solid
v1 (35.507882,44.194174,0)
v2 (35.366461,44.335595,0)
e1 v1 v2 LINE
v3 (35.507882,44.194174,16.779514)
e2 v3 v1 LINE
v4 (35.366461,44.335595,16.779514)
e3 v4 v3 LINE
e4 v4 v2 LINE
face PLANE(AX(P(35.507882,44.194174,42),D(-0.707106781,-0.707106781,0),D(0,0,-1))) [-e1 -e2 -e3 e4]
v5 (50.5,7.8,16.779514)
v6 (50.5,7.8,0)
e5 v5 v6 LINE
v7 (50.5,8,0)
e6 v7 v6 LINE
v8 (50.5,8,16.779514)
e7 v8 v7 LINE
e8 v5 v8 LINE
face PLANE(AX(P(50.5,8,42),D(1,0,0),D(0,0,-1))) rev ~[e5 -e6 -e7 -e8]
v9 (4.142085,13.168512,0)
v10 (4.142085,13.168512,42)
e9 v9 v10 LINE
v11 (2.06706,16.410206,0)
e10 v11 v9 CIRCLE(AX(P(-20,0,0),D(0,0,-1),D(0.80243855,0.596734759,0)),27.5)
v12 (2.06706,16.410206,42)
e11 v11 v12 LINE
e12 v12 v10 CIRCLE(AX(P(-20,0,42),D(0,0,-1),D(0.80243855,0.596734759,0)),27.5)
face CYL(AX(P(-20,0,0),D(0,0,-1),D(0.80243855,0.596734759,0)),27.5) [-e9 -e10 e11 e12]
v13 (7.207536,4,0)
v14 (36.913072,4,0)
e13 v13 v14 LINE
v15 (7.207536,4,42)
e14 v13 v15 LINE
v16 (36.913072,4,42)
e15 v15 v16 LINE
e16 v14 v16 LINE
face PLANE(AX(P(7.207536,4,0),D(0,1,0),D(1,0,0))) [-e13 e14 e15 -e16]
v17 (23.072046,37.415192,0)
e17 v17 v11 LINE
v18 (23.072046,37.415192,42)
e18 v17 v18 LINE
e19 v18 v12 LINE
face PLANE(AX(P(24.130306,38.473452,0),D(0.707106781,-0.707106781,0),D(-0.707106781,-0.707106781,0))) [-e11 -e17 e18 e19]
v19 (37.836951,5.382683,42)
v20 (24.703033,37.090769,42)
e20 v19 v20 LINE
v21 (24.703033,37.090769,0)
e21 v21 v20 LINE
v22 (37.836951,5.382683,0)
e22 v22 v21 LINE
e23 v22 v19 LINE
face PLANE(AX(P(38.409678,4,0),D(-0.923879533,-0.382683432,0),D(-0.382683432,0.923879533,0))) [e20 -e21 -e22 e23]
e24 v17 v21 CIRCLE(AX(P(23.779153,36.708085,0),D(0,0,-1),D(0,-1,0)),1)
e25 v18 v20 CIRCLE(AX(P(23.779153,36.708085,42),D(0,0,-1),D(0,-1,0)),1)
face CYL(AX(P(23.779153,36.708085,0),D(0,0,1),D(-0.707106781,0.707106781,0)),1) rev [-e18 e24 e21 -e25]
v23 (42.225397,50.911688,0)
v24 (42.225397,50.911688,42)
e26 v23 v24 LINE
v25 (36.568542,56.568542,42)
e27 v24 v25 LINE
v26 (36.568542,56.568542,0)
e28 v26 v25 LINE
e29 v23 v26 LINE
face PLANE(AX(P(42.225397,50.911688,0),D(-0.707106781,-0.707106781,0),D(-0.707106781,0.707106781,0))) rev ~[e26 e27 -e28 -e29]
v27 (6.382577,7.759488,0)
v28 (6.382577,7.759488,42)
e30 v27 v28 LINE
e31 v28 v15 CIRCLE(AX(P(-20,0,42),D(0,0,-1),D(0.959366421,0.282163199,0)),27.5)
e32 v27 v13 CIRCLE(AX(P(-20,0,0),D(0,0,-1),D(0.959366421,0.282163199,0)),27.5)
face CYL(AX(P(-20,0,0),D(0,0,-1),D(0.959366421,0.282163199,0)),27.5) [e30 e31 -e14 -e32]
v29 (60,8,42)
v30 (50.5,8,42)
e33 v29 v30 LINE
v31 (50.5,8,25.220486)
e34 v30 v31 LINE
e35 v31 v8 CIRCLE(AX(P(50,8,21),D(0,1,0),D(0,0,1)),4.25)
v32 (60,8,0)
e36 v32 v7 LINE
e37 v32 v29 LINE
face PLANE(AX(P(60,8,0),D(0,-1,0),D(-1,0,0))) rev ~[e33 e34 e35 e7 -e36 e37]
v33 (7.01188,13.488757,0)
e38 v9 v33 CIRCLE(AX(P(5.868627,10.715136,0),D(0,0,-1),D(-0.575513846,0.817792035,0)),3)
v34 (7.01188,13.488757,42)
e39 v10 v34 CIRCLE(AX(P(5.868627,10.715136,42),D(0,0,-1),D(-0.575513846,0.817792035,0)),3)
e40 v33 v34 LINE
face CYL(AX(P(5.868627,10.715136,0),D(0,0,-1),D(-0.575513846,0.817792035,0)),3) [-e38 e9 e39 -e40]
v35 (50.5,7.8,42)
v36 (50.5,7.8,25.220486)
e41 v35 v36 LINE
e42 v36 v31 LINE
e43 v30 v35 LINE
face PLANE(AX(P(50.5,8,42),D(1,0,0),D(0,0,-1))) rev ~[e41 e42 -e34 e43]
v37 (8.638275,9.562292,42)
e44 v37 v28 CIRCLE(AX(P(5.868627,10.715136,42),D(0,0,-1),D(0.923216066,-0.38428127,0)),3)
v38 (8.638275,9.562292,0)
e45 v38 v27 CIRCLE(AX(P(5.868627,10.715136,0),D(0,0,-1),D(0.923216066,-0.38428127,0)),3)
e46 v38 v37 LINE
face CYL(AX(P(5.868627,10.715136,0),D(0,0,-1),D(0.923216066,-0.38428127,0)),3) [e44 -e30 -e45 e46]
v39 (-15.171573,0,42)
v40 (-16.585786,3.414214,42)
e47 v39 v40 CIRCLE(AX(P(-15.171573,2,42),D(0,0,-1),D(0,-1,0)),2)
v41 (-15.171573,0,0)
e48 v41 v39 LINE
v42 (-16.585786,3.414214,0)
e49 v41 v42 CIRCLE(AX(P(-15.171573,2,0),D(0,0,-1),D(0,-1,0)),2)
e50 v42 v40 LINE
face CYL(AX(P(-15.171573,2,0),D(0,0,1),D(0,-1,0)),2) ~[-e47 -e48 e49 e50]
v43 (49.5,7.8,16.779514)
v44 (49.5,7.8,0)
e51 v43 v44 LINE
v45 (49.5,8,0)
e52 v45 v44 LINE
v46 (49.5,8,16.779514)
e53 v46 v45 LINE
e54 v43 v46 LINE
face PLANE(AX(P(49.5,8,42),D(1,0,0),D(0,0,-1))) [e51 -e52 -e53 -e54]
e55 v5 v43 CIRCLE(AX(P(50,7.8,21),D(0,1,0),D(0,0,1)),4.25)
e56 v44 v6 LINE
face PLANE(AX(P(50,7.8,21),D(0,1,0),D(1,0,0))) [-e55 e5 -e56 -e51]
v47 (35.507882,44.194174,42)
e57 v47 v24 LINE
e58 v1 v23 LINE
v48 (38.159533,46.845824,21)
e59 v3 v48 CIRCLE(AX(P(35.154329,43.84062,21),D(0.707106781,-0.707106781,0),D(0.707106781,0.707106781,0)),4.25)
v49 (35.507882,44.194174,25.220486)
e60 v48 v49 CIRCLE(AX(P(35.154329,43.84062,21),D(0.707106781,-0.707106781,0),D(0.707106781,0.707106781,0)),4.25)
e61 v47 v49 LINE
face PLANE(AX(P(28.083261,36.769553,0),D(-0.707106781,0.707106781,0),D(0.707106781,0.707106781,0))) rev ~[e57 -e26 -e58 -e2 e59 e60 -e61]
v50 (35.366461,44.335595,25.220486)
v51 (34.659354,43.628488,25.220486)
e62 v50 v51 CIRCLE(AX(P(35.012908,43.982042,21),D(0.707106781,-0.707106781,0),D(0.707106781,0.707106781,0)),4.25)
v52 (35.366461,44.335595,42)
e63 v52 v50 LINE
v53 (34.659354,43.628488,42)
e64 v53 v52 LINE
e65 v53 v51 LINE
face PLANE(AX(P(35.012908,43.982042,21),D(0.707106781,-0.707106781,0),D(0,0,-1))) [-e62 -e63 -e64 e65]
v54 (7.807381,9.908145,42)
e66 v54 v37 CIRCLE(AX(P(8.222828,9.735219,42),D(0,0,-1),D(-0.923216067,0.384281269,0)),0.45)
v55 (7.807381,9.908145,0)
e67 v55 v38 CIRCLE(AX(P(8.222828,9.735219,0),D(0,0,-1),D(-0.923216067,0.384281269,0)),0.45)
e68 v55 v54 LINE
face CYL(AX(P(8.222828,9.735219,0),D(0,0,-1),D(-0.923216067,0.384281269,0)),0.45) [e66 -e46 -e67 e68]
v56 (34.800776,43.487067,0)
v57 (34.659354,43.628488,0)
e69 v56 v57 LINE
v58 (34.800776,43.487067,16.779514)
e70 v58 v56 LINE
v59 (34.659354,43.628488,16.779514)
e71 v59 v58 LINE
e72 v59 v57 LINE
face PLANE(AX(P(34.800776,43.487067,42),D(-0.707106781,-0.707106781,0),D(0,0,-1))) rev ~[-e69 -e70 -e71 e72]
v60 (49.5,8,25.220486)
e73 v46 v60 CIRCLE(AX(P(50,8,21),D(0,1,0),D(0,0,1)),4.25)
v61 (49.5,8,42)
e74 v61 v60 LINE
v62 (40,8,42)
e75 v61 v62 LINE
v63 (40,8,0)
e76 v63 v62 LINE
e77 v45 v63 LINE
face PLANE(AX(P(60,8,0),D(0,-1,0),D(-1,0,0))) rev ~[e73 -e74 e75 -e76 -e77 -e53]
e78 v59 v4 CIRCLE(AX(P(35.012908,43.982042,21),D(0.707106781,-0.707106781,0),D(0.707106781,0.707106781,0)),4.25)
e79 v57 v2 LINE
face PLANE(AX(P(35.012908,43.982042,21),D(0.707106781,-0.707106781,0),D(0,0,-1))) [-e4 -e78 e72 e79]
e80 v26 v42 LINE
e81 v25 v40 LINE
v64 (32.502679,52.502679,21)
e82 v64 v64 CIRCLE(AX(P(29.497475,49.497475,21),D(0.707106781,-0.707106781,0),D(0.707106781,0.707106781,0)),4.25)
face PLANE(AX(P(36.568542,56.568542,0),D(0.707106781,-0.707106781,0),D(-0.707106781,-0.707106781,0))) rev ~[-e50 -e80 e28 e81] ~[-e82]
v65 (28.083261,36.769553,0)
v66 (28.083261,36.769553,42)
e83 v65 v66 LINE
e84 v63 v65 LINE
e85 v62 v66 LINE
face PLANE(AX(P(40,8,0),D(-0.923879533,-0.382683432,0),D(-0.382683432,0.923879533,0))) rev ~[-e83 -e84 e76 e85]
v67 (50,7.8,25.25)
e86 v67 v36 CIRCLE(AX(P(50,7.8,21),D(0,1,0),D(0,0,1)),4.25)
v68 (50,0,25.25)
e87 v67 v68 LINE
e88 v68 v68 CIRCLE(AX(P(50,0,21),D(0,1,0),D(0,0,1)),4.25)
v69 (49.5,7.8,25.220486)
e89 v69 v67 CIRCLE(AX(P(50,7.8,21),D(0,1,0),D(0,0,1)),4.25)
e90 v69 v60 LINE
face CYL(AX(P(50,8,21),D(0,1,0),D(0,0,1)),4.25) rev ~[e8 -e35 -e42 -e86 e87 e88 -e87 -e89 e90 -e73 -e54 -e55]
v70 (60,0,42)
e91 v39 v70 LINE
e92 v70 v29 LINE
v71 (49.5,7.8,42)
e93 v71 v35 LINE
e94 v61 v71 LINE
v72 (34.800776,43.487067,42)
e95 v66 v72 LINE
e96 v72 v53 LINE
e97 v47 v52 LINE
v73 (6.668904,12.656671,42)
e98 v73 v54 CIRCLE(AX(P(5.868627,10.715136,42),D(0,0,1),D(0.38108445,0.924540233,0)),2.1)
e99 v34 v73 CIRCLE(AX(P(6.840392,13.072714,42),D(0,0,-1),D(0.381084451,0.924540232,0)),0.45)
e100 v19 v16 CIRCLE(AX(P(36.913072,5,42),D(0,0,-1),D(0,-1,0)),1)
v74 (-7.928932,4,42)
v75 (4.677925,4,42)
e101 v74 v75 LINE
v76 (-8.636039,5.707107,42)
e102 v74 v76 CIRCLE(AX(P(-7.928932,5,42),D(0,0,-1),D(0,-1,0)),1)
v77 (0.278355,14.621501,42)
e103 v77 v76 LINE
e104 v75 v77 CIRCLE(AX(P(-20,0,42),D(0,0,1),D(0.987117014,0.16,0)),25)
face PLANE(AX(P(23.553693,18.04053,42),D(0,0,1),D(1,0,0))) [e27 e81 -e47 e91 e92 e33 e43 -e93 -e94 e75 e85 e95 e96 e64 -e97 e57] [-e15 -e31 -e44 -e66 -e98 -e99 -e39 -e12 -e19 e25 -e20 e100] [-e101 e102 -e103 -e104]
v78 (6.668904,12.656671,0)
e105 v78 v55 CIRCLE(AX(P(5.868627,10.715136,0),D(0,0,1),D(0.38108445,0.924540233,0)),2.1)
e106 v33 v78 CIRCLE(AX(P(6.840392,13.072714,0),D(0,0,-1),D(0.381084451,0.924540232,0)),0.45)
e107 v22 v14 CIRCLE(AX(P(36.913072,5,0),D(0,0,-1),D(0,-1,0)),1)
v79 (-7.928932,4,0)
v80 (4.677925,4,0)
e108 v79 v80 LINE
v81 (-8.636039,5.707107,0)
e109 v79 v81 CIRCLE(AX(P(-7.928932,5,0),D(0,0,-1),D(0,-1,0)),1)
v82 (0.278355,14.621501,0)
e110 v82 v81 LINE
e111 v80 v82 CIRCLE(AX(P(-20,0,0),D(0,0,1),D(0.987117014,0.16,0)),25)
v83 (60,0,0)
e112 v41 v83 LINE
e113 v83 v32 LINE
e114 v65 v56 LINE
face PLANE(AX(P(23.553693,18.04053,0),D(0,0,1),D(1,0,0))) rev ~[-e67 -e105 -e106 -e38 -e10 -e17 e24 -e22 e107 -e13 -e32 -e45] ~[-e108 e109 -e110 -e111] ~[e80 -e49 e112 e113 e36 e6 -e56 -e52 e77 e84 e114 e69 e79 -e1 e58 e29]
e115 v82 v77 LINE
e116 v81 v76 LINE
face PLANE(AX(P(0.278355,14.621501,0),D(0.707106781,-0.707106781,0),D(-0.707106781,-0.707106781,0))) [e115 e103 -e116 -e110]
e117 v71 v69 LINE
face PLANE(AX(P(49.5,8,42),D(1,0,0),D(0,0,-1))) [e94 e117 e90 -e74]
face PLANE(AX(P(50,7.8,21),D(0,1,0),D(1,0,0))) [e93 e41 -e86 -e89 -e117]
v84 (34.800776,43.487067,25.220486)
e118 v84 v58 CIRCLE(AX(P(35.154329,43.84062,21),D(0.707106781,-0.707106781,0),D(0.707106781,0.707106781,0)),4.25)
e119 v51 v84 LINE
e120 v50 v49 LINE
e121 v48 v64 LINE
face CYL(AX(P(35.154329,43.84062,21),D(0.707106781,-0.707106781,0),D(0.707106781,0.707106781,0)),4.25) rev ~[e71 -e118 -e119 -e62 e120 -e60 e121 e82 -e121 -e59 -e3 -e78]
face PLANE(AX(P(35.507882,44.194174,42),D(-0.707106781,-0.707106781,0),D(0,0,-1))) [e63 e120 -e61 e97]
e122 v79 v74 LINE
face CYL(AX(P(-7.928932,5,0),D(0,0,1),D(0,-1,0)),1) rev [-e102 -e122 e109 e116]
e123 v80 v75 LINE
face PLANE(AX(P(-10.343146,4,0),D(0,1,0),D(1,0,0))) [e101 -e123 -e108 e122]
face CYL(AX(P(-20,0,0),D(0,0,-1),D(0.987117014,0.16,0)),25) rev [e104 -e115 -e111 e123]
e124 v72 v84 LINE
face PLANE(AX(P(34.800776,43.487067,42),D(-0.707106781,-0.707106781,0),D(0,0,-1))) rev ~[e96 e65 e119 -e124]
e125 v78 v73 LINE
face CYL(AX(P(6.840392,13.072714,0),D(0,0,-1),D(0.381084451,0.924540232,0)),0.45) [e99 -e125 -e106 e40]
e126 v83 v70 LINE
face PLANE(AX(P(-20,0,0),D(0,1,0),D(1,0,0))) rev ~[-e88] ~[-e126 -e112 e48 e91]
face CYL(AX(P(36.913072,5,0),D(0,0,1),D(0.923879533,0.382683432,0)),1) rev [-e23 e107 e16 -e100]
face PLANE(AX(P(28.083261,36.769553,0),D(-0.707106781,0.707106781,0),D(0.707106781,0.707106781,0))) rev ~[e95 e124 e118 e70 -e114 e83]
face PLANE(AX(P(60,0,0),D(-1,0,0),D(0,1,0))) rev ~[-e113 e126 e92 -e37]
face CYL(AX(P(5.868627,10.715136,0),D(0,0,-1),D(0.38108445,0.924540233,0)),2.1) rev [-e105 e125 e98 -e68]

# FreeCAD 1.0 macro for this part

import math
import FreeCAD as App
import Part
import Sketcher
from FreeCAD import Vector
Q = App.Units.Quantity


def edges_at(feature, points):
    """Names of the edges that pass closest to the given points."""
    edges = feature.Shape.Edges
    near = lambda p: min(range(len(edges)), key=lambda i: edges[i].distToShape(Part.Vertex(*p))[0])
    return sorted({f"Edge{near(p) + 1}" for p in points})


def add_polygon(sketch, points):
    """Adds a closed chain of lines whose ends are joined by coincident constraints."""
    first, n = sketch.GeometryCount, len(points)
    for a, b in zip(points, points[1:] + points[:1]):
        sketch.addGeometry(Part.LineSegment(App.Vector(*a, 0), App.Vector(*b, 0)), False)
    for i in range(n):
        sketch.addConstraint(Sketcher.Constraint("Coincident", first + i, 2, first + (i + 1) % n, 1))

doc = App.newDocument("Part")
body = doc.addObject("PartDesign::Body", "Body")

# Sketch on XY plane
sketch1 = doc.addObject("Sketcher::SketchObject", "Sketch")
body.addObject(sketch1)
sketch1.AttachmentSupport = (doc.XY_Plane, [""])
sketch1.MapMode = "FlatFace"
add_polygon(sketch1, [(60, 0), (60, 8), (40, 8), (28.08, 36.77), (42.23, 50.91), (36.57, 56.57), (-20, 0)])  # lines 0-6
sketch1.addGeometry(Part.LineSegment(Vector(4.68, 4, 0), Vector(-10.34, 4, 0)), False)  # 7
sketch1.addGeometry(Part.LineSegment(Vector(-10.34, 4, 0), Vector(0.28, 14.62, 0)), False)  # 8
sketch1.addGeometry(Part.ArcOfCircle(Part.Circle(Vector(-20, 0, 0), Vector(0, 0, 1), 25), math.radians(9), math.radians(36)), False)  # 9
sketch1.addGeometry(Part.LineSegment(Vector(2.07, 16.41, 0), Vector(24.13, 38.47, 0)), False)  # 10
sketch1.addGeometry(Part.LineSegment(Vector(24.13, 38.47, 0), Vector(38.41, 4, 0)), False)  # 11
sketch1.addGeometry(Part.LineSegment(Vector(38.41, 4, 0), Vector(7.21, 4, 0)), False)  # 12
sketch1.addGeometry(Part.ArcOfCircle(Part.Circle(Vector(-20, 0, 0), Vector(0, 0, 1), 27.5), math.radians(8.36), math.radians(16.39)), False)  # 13
sketch1.addGeometry(Part.ArcOfCircle(Part.Circle(Vector(5.87, 10.72, 0), Vector(0, 0, 1), 3), math.radians(-80), math.radians(-23)), False)  # 14
sketch1.addGeometry(Part.ArcOfCircle(Part.Circle(Vector(8.22, 9.74, 0), Vector(0, 0, 1), 0.45), math.radians(-23), math.radians(157)), False)  # 15
sketch1.addGeometry(Part.ArcOfCircle(Part.Circle(Vector(5.87, 10.72, 0), Vector(0, 0, 1), 2.1), math.radians(68), math.radians(337)), False)  # 16
sketch1.addGeometry(Part.ArcOfCircle(Part.Circle(Vector(6.84, 13.07, 0), Vector(0, 0, 1), 0.45), math.radians(-112), math.radians(68)), False)  # 17
sketch1.addGeometry(Part.ArcOfCircle(Part.Circle(Vector(5.87, 10.72, 0), Vector(0, 0, 1), 3), math.radians(68), math.radians(125)), False)  # 18
sketch1.addGeometry(Part.ArcOfCircle(Part.Circle(Vector(-20, 0, 0), Vector(0, 0, 1), 27.5), math.radians(28.61), math.radians(36.64)), False)  # 19
sketch1.addConstraint([
    Sketcher.Constraint("Coincident", 7, 2, 8, 1),
    Sketcher.Constraint("Coincident", 8, 2, 9, 2),
    Sketcher.Constraint("Coincident", 9, 1, 7, 1),
    Sketcher.Constraint("Coincident", 10, 2, 11, 1),
    Sketcher.Constraint("Coincident", 11, 2, 12, 1),
    Sketcher.Constraint("Coincident", 12, 2, 13, 1),
    Sketcher.Constraint("Coincident", 13, 2, 14, 1),
    Sketcher.Constraint("Tangent", 14, 2, 15, 1),
    Sketcher.Constraint("Tangent", 15, 2, 16, 2),
    Sketcher.Constraint("Tangent", 16, 1, 17, 1),
    Sketcher.Constraint("Tangent", 17, 2, 18, 1),
    Sketcher.Constraint("Coincident", 18, 2, 19, 1),
    Sketcher.Constraint("Coincident", 19, 2, 10, 1),
    Sketcher.Constraint("Vertical", 0),
    Sketcher.Constraint("Horizontal", 1),
    Sketcher.Constraint("Horizontal", 6),
    Sketcher.Constraint("Horizontal", 7),
    Sketcher.Constraint("Horizontal", 12),
    Sketcher.Constraint("Coincident", 13, 3, 9, 3),
    Sketcher.Constraint("Coincident", 16, 3, 14, 3),
    Sketcher.Constraint("Coincident", 18, 3, 14, 3),
    Sketcher.Constraint("Coincident", 19, 3, 9, 3),
    Sketcher.Constraint("Coincident", 5, 2, 9, 3),
    Sketcher.Constraint("Equal", 15, 17),
    Sketcher.Constraint("Equal", 13, 19),
    Sketcher.Constraint("PointOnObject", 9, 3, -1),
    Sketcher.Constraint("Perpendicular", 3, 4),
    Sketcher.Constraint("Perpendicular", 4, 5),
    Sketcher.Constraint("Parallel", 5, 8),
    Sketcher.Constraint("Parallel", 8, 10),
    Sketcher.Constraint("Parallel", 2, 11),
    Sketcher.Constraint("Horizontal", 9, 1, 11, 2),
    Sketcher.Constraint("Radius", 9, 25.0),
    Sketcher.Constraint("Radius", 14, 3.0),
    Sketcher.Constraint("Radius", 13, 27.5),
    Sketcher.Constraint("Radius", 16, 2.1),
    Sketcher.Constraint("DistanceX", 1, 2, 1, 1, 20.0),
    Sketcher.Constraint("DistanceX", 6, 1, 6, 2, 80.0),
    Sketcher.Constraint("DistanceY", 0, 1, 0, 2, 8.0),
    Sketcher.Constraint("Angle", 3, Q("45 deg")),
    Sketcher.Constraint("Distance", 3, 20.0),
    Sketcher.Constraint("Distance", 4, 8.0),
    Sketcher.Constraint("Distance", 5, 80.0),
    Sketcher.Constraint("DistanceX", 9, 3, -1, 1, 20.0),
    Sketcher.Constraint("DistanceY", -1, 1, 7, 2, 4.0),
    Sketcher.Constraint("DistanceX", 7, 2, 7, 1, 15.021071),
    Sketcher.Constraint("DistanceX", 12, 2, 12, 1, 31.202142),
    Sketcher.Constraint("DistanceX", 14, 3, 15, 3, 2.354201),
    Sketcher.Constraint("DistanceX", 9, 1, 16, 3, 1.190702),
    Sketcher.Constraint("DistanceY", 2, 2, 10, 2, 1.703899),
    Sketcher.Constraint("DistanceX", 13, 2, 14, 2, 2.255699),
    Sketcher.Constraint("DistanceY", 17, 3, 18, 2, 0.095799),
])
pad1 = doc.addObject("PartDesign::Pad", "Pad")
body.addObject(pad1)
pad1.Profile = sketch1
pad1.Length = 42
doc.recompute()

fillet = doc.addObject("PartDesign::Fillet", "Fillet")
body.addObject(fillet)
fillet.Base = (pad1, edges_at(pad1, [(-20, 0, 21)]))
fillet.Radius = 2
doc.recompute()

fillet2 = doc.addObject("PartDesign::Fillet", "Fillet001")
body.addObject(fillet2)
fillet2.Base = (fillet, edges_at(fillet, [(-10.343, 4, 21)]))
fillet2.Radius = 1
doc.recompute()

fillet3 = doc.addObject("PartDesign::Fillet", "Fillet002")
body.addObject(fillet3)
fillet3.Base = (fillet2, edges_at(fillet2, [(38.41, 4, 21), (24.13, 38.473, 21)]))
fillet3.Radius = 1

# Sketch on XZ plane
sketch2 = doc.addObject("Sketcher::SketchObject", "Sketch001")
body.addObject(sketch2)
sketch2.AttachmentSupport = (doc.XZ_Plane, [""])
sketch2.MapMode = "FlatFace"
sketch2.AttachmentOffset = App.Placement(Vector(0, 0, -8), App.Rotation())
sketch2.addGeometry(Part.Circle(Vector(50, 21, 0), Vector(0, 0, 1), 4.2), False)
sketch2.addConstraint([
    Sketcher.Constraint("Diameter", 0, 8.5),
    Sketcher.Constraint("DistanceX", -1, 1, 0, 3, 50.0),
    Sketcher.Constraint("DistanceY", -1, 1, 0, 3, 21.0),
])
pocket1 = doc.addObject("PartDesign::Pocket", "Pocket")
body.addObject(pocket1)
pocket1.Profile = sketch2
pocket1.Type = "UpToFirst"
pocket1.Reversed = True

# Sketch on an angled plane
sketch3 = doc.addObject("Sketcher::SketchObject", "Sketch002")
body.addObject(sketch3)
sketch3.Placement = App.Placement(Vector(-4.343146, 4.343146, 0), App.Rotation(Vector(0, 0, -1), Vector(0.707106781, 0.707106781, 0), Vector(0.707106781, -0.707106781, 0), "ZXY"))
sketch3.addGeometry(Part.Circle(Vector(-21, 55.9, 0), Vector(0, 0, 1), 4.2), False)
sketch3.addConstraint([
    Sketcher.Constraint("Diameter", 0, 8.5),
    Sketcher.Constraint("DistanceX", 0, 3, -1, 1, 21.0),
    Sketcher.Constraint("DistanceY", -1, 1, 0, 3, 55.857864),
])
pocket2 = doc.addObject("PartDesign::Pocket", "Pocket001")
body.addObject(pocket2)
pocket2.Profile = sketch3
pocket2.Type = "UpToFirst"

# Sketch on an angled plane
sketch4 = doc.addObject("Sketcher::SketchObject", "Sketch003")
body.addObject(sketch4)
sketch4.Placement = App.Placement(Vector(-4.343146, 4.343146, 0), App.Rotation(Vector(0, 0, -1), Vector(0.707106781, 0.707106781, 0), Vector(0.707106781, -0.707106781, 0), "ZXY"))
add_polygon(sketch4, [(-42, 56.4), (-42, 55.4), (0, 55.4), (0, 56.4)])  # lines 0-3
sketch4.addConstraint([
    Sketcher.Constraint("Vertical", 0),
    Sketcher.Constraint("Horizontal", 1),
    Sketcher.Constraint("Vertical", 2),
    Sketcher.Constraint("Horizontal", 3),
    Sketcher.Constraint("PointOnObject", 1, 2, -2),
    Sketcher.Constraint("DistanceX", 1, 1, 1, 2, 42.0),
    Sketcher.Constraint("DistanceY", 0, 2, 0, 1, 1.0),
    Sketcher.Constraint("DistanceY", -1, 1, 0, 2, 55.357864),
])
pocket3 = doc.addObject("PartDesign::Pocket", "Pocket002")
body.addObject(pocket3)
pocket3.Profile = sketch4
pocket3.Length = 0.2

# Sketch on XZ plane
sketch5 = doc.addObject("Sketcher::SketchObject", "Sketch004")
body.addObject(sketch5)
sketch5.AttachmentSupport = (doc.XZ_Plane, [""])
sketch5.MapMode = "FlatFace"
sketch5.AttachmentOffset = App.Placement(Vector(0, 0, -8), App.Rotation())
add_polygon(sketch5, [(49.5, 0), (49.5, 42), (50.5, 42), (50.5, 0)])  # lines 0-3
sketch5.addConstraint([
    Sketcher.Constraint("Vertical", 0),
    Sketcher.Constraint("Horizontal", 1),
    Sketcher.Constraint("Vertical", 2),
    Sketcher.Constraint("Horizontal", 3),
    Sketcher.Constraint("PointOnObject", 2, 2, -1),
    Sketcher.Constraint("DistanceX", 1, 1, 1, 2, 1.0),
    Sketcher.Constraint("DistanceY", 0, 1, 0, 2, 42.0),
    Sketcher.Constraint("DistanceX", -1, 1, 0, 2, 49.5),
])
pocket4 = doc.addObject("PartDesign::Pocket", "Pocket003")
body.addObject(pocket4)
pocket4.Profile = sketch5
pocket4.Length = 0.2
pocket4.Reversed = True

doc.recompute()
